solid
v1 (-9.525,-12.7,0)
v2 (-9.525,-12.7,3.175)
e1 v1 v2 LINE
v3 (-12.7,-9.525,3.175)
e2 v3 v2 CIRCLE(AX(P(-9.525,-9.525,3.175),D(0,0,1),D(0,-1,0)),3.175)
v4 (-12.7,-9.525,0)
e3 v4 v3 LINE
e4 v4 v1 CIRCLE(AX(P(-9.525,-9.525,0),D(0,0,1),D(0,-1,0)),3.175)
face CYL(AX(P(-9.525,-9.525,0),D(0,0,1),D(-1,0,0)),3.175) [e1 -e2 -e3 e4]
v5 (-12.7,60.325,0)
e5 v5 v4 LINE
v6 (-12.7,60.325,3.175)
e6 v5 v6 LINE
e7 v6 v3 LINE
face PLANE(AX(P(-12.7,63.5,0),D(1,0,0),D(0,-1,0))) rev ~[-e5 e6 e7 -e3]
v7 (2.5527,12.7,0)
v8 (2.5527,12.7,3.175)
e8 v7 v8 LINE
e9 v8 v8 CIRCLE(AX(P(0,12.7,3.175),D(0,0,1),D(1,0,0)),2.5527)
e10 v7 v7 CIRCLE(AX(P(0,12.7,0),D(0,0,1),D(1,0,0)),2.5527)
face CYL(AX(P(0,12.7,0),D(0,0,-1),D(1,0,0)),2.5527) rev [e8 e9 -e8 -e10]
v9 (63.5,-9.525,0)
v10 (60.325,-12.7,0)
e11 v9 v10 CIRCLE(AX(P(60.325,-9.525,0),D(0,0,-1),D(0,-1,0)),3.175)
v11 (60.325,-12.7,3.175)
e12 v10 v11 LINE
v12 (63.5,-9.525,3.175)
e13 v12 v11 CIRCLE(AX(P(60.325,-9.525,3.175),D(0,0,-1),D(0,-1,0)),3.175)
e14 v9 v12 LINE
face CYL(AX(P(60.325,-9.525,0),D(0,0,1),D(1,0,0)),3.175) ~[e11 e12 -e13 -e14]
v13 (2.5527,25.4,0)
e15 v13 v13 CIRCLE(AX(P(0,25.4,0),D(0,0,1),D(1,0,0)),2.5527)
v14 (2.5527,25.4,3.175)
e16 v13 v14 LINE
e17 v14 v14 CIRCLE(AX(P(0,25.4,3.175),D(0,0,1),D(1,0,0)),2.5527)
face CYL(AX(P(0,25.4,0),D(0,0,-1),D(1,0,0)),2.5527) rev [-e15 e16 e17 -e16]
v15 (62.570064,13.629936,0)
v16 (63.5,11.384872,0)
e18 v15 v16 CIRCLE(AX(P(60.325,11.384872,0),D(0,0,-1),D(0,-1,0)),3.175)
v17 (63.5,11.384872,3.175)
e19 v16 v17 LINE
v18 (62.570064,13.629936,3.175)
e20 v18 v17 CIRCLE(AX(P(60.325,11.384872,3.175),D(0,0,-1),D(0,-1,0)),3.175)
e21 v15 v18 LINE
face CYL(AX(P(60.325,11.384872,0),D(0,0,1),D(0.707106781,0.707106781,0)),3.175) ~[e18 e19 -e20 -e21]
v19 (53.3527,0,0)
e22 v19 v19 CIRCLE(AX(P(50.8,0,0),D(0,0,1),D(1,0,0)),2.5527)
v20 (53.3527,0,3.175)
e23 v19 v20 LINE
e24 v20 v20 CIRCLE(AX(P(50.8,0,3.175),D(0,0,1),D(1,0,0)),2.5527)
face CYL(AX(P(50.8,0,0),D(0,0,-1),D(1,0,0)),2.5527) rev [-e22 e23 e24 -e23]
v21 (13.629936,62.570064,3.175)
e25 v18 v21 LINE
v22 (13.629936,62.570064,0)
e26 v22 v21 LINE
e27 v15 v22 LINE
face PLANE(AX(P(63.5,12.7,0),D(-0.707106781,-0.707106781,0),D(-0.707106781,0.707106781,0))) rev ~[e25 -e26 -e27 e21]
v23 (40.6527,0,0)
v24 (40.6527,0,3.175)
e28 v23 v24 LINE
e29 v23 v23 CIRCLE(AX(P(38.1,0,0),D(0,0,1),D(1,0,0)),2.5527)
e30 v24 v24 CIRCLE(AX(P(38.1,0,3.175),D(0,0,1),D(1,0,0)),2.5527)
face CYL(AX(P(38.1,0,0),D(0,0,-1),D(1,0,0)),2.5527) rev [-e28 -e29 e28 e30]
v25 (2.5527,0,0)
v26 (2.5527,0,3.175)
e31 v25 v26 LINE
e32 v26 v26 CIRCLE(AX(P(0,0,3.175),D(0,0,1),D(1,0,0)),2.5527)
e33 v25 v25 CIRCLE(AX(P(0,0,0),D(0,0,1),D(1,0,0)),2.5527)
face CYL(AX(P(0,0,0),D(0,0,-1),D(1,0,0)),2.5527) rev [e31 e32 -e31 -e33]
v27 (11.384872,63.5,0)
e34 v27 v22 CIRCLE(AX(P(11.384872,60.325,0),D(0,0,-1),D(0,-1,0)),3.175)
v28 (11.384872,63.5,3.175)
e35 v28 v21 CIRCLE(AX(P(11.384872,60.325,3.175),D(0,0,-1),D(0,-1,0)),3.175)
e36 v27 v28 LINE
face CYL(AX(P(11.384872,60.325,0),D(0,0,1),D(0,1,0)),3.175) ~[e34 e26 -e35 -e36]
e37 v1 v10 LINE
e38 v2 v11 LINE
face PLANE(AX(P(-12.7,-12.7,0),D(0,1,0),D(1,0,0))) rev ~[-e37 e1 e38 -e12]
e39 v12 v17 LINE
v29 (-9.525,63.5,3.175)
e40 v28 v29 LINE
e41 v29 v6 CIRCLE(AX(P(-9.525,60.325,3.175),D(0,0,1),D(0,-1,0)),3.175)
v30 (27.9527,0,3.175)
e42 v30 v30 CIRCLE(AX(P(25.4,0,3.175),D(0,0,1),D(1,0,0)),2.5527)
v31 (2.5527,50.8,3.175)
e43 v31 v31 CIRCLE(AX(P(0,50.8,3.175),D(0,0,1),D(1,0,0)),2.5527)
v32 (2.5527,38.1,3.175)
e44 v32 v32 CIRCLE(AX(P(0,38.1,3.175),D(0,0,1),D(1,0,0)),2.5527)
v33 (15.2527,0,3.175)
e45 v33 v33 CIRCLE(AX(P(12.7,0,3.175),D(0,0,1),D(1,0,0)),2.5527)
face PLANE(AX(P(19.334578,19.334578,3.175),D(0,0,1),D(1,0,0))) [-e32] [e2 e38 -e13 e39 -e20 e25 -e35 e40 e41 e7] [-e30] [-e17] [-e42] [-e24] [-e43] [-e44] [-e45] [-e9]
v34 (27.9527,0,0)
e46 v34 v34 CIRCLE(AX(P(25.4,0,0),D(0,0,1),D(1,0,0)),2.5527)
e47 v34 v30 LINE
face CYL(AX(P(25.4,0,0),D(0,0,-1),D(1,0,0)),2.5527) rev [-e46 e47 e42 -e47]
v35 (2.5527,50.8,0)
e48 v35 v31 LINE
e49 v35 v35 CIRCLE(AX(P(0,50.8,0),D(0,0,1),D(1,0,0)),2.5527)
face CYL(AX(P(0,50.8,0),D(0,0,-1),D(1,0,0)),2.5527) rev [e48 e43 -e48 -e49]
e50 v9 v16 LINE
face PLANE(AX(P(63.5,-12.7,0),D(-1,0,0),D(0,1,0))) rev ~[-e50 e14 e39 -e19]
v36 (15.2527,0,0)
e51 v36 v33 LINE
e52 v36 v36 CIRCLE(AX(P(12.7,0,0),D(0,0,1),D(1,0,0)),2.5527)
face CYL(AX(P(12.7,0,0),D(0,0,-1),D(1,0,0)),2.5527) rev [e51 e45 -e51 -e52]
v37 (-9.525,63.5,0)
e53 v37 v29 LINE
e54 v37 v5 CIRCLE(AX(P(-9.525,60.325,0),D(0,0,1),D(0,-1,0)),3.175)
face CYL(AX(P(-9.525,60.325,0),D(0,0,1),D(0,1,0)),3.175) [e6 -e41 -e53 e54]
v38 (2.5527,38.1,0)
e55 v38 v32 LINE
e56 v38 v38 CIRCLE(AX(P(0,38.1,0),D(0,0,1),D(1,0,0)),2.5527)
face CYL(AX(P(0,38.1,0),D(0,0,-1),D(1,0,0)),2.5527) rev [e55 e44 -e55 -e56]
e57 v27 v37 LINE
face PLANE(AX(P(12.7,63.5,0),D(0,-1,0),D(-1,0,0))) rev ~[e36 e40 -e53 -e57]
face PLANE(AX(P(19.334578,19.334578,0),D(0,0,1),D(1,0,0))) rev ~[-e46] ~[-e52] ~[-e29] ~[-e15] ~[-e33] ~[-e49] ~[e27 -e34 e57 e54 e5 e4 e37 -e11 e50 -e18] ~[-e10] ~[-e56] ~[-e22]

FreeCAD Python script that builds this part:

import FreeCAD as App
import Part
import Sketcher
from FreeCAD import Vector
Q = App.Units.Quantity


def edges_at(feature, points):
    """Names of the edges that pass closest to the given points."""
    edges = feature.Shape.Edges
    near = lambda p: min(range(len(edges)), key=lambda i: edges[i].distToShape(Part.Vertex(*p))[0])
    return sorted({f"Edge{near(p) + 1}" for p in points})


def add_polygon(sketch, points):
    """Adds a closed chain of lines whose ends are joined by coincident constraints."""
    first, n = sketch.GeometryCount, len(points)
    for a, b in zip(points, points[1:] + points[:1]):
        sketch.addGeometry(Part.LineSegment(App.Vector(*a, 0), App.Vector(*b, 0)), False)
    for i in range(n):
        sketch.addConstraint(Sketcher.Constraint("Coincident", first + i, 2, first + (i + 1) % n, 1))

doc = App.newDocument("Part")
body = doc.addObject("PartDesign::Body", "Body")

# Sketch on XY plane
sketch1 = doc.addObject("Sketcher::SketchObject", "Sketch")
body.addObject(sketch1)
sketch1.AttachmentSupport = (doc.XY_Plane, [""])
sketch1.MapMode = "FlatFace"
add_polygon(sketch1, [(12.7, 63.5), (-12.7, 63.5), (-12.7, -12.7), (63.5, -12.7), (63.5, 12.7)])  # lines 0-4
sketch1.addGeometry(Part.Circle(Vector(0, 0, 0), Vector(0, 0, 1), 2.6), False)  # 5
sketch1.addGeometry(Part.Circle(Vector(12.7, 0, 0), Vector(0, 0, 1), 2.6), False)  # 6
sketch1.addGeometry(Part.Circle(Vector(0, 12.7, 0), Vector(0, 0, 1), 2.6), False)  # 7
sketch1.addGeometry(Part.Circle(Vector(25.4, 0, 0), Vector(0, 0, 1), 2.6), False)  # 8
sketch1.addGeometry(Part.Circle(Vector(38.1, 0, 0), Vector(0, 0, 1), 2.6), False)  # 9
sketch1.addGeometry(Part.Circle(Vector(50.8, 0, 0), Vector(0, 0, 1), 2.6), False)  # 10
sketch1.addGeometry(Part.Circle(Vector(0, 25.4, 0), Vector(0, 0, 1), 2.6), False)  # 11
sketch1.addGeometry(Part.Circle(Vector(0, 38.1, 0), Vector(0, 0, 1), 2.6), False)  # 12
sketch1.addGeometry(Part.Circle(Vector(0, 50.8, 0), Vector(0, 0, 1), 2.6), False)  # 13
sketch1.addConstraint(Sketcher.Constraint("Horizontal", 0))
sketch1.addConstraint(Sketcher.Constraint("Vertical", 1))
sketch1.addConstraint(Sketcher.Constraint("Horizontal", 2))
sketch1.addConstraint(Sketcher.Constraint("Vertical", 3))
sketch1.addConstraint(Sketcher.Constraint("Coincident", 5, 3, -1, 1))
sketch1.addConstraint(Sketcher.Constraint("Equal", 5, 6))
sketch1.addConstraint(Sketcher.Constraint("Equal", 6, 7))
sketch1.addConstraint(Sketcher.Constraint("Equal", 7, 8))
sketch1.addConstraint(Sketcher.Constraint("Equal", 8, 9))
sketch1.addConstraint(Sketcher.Constraint("Equal", 9, 10))
sketch1.addConstraint(Sketcher.Constraint("Equal", 10, 11))
sketch1.addConstraint(Sketcher.Constraint("Equal", 11, 12))
sketch1.addConstraint(Sketcher.Constraint("Equal", 12, 13))
sketch1.addConstraint(Sketcher.Constraint("PointOnObject", 6, 3, -1))
sketch1.addConstraint(Sketcher.Constraint("PointOnObject", 7, 3, -2))
sketch1.addConstraint(Sketcher.Constraint("PointOnObject", 8, 3, -1))
sketch1.addConstraint(Sketcher.Constraint("PointOnObject", 9, 3, -1))
sketch1.addConstraint(Sketcher.Constraint("PointOnObject", 10, 3, -1))
sketch1.addConstraint(Sketcher.Constraint("PointOnObject", 11, 3, -2))
sketch1.addConstraint(Sketcher.Constraint("PointOnObject", 12, 3, -2))
sketch1.addConstraint(Sketcher.Constraint("PointOnObject", 13, 3, -2))
sketch1.addConstraint(Sketcher.Constraint("Horizontal", 7, 3, 3, 2))
sketch1.addConstraint(Sketcher.Constraint("Vertical", 6, 3, 4, 2))
sketch1.addConstraint(Sketcher.Constraint("Equal", 2, 1))
sketch1.addConstraint(Sketcher.Constraint("Equal", 0, 3))
sketch1.addConstraint(Sketcher.Constraint("DistanceX", 0, 2, 0, 1, Q("1 in")))
sketch1.addConstraint(Sketcher.Constraint("DistanceX", 2, 1, 2, 2, Q("3 in")))
sketch1.addConstraint(Sketcher.Constraint("Diameter", 5, Q("0.201 in")))
sketch1.addConstraint(Sketcher.Constraint("DistanceX", -1, 1, 8, 3, Q("1 in")))
sketch1.addConstraint(Sketcher.Constraint("DistanceX", -1, 1, 10, 3, Q("2 in")))
sketch1.addConstraint(Sketcher.Constraint("DistanceY", -1, 1, 11, 3, Q("1 in")))
sketch1.addConstraint(Sketcher.Constraint("DistanceY", -1, 1, 13, 3, Q("2 in")))
sketch1.addConstraint(Sketcher.Constraint("DistanceX", 6, 3, 9, 3, Q("1 in")))
sketch1.addConstraint(Sketcher.Constraint("DistanceY", 7, 3, 12, 3, Q("1 in")))
sketch1.addConstraint(Sketcher.Constraint("DistanceX", -1, 1, 6, 3, Q("0.5 in")))
sketch1.addConstraint(Sketcher.Constraint("DistanceY", -1, 1, 7, 3, Q("0.5 in")))
pad1 = doc.addObject("PartDesign::Pad", "Pad")
body.addObject(pad1)
pad1.Profile = sketch1
pad1.Length = Q("0.125 in")
doc.recompute()

fillet = doc.addObject("PartDesign::Fillet", "Fillet")
body.addObject(fillet)
fillet.Base = (pad1, edges_at(pad1, [
    (-12.7, 63.5, 1.587),
    (12.7, 63.5, 1.587),
    (-12.7, -12.7, 1.587),
    (63.5, -12.7, 1.587),
    (63.5, 12.7, 1.587),
]))
fillet.Radius = Q("0.125 in")

doc.recompute()
